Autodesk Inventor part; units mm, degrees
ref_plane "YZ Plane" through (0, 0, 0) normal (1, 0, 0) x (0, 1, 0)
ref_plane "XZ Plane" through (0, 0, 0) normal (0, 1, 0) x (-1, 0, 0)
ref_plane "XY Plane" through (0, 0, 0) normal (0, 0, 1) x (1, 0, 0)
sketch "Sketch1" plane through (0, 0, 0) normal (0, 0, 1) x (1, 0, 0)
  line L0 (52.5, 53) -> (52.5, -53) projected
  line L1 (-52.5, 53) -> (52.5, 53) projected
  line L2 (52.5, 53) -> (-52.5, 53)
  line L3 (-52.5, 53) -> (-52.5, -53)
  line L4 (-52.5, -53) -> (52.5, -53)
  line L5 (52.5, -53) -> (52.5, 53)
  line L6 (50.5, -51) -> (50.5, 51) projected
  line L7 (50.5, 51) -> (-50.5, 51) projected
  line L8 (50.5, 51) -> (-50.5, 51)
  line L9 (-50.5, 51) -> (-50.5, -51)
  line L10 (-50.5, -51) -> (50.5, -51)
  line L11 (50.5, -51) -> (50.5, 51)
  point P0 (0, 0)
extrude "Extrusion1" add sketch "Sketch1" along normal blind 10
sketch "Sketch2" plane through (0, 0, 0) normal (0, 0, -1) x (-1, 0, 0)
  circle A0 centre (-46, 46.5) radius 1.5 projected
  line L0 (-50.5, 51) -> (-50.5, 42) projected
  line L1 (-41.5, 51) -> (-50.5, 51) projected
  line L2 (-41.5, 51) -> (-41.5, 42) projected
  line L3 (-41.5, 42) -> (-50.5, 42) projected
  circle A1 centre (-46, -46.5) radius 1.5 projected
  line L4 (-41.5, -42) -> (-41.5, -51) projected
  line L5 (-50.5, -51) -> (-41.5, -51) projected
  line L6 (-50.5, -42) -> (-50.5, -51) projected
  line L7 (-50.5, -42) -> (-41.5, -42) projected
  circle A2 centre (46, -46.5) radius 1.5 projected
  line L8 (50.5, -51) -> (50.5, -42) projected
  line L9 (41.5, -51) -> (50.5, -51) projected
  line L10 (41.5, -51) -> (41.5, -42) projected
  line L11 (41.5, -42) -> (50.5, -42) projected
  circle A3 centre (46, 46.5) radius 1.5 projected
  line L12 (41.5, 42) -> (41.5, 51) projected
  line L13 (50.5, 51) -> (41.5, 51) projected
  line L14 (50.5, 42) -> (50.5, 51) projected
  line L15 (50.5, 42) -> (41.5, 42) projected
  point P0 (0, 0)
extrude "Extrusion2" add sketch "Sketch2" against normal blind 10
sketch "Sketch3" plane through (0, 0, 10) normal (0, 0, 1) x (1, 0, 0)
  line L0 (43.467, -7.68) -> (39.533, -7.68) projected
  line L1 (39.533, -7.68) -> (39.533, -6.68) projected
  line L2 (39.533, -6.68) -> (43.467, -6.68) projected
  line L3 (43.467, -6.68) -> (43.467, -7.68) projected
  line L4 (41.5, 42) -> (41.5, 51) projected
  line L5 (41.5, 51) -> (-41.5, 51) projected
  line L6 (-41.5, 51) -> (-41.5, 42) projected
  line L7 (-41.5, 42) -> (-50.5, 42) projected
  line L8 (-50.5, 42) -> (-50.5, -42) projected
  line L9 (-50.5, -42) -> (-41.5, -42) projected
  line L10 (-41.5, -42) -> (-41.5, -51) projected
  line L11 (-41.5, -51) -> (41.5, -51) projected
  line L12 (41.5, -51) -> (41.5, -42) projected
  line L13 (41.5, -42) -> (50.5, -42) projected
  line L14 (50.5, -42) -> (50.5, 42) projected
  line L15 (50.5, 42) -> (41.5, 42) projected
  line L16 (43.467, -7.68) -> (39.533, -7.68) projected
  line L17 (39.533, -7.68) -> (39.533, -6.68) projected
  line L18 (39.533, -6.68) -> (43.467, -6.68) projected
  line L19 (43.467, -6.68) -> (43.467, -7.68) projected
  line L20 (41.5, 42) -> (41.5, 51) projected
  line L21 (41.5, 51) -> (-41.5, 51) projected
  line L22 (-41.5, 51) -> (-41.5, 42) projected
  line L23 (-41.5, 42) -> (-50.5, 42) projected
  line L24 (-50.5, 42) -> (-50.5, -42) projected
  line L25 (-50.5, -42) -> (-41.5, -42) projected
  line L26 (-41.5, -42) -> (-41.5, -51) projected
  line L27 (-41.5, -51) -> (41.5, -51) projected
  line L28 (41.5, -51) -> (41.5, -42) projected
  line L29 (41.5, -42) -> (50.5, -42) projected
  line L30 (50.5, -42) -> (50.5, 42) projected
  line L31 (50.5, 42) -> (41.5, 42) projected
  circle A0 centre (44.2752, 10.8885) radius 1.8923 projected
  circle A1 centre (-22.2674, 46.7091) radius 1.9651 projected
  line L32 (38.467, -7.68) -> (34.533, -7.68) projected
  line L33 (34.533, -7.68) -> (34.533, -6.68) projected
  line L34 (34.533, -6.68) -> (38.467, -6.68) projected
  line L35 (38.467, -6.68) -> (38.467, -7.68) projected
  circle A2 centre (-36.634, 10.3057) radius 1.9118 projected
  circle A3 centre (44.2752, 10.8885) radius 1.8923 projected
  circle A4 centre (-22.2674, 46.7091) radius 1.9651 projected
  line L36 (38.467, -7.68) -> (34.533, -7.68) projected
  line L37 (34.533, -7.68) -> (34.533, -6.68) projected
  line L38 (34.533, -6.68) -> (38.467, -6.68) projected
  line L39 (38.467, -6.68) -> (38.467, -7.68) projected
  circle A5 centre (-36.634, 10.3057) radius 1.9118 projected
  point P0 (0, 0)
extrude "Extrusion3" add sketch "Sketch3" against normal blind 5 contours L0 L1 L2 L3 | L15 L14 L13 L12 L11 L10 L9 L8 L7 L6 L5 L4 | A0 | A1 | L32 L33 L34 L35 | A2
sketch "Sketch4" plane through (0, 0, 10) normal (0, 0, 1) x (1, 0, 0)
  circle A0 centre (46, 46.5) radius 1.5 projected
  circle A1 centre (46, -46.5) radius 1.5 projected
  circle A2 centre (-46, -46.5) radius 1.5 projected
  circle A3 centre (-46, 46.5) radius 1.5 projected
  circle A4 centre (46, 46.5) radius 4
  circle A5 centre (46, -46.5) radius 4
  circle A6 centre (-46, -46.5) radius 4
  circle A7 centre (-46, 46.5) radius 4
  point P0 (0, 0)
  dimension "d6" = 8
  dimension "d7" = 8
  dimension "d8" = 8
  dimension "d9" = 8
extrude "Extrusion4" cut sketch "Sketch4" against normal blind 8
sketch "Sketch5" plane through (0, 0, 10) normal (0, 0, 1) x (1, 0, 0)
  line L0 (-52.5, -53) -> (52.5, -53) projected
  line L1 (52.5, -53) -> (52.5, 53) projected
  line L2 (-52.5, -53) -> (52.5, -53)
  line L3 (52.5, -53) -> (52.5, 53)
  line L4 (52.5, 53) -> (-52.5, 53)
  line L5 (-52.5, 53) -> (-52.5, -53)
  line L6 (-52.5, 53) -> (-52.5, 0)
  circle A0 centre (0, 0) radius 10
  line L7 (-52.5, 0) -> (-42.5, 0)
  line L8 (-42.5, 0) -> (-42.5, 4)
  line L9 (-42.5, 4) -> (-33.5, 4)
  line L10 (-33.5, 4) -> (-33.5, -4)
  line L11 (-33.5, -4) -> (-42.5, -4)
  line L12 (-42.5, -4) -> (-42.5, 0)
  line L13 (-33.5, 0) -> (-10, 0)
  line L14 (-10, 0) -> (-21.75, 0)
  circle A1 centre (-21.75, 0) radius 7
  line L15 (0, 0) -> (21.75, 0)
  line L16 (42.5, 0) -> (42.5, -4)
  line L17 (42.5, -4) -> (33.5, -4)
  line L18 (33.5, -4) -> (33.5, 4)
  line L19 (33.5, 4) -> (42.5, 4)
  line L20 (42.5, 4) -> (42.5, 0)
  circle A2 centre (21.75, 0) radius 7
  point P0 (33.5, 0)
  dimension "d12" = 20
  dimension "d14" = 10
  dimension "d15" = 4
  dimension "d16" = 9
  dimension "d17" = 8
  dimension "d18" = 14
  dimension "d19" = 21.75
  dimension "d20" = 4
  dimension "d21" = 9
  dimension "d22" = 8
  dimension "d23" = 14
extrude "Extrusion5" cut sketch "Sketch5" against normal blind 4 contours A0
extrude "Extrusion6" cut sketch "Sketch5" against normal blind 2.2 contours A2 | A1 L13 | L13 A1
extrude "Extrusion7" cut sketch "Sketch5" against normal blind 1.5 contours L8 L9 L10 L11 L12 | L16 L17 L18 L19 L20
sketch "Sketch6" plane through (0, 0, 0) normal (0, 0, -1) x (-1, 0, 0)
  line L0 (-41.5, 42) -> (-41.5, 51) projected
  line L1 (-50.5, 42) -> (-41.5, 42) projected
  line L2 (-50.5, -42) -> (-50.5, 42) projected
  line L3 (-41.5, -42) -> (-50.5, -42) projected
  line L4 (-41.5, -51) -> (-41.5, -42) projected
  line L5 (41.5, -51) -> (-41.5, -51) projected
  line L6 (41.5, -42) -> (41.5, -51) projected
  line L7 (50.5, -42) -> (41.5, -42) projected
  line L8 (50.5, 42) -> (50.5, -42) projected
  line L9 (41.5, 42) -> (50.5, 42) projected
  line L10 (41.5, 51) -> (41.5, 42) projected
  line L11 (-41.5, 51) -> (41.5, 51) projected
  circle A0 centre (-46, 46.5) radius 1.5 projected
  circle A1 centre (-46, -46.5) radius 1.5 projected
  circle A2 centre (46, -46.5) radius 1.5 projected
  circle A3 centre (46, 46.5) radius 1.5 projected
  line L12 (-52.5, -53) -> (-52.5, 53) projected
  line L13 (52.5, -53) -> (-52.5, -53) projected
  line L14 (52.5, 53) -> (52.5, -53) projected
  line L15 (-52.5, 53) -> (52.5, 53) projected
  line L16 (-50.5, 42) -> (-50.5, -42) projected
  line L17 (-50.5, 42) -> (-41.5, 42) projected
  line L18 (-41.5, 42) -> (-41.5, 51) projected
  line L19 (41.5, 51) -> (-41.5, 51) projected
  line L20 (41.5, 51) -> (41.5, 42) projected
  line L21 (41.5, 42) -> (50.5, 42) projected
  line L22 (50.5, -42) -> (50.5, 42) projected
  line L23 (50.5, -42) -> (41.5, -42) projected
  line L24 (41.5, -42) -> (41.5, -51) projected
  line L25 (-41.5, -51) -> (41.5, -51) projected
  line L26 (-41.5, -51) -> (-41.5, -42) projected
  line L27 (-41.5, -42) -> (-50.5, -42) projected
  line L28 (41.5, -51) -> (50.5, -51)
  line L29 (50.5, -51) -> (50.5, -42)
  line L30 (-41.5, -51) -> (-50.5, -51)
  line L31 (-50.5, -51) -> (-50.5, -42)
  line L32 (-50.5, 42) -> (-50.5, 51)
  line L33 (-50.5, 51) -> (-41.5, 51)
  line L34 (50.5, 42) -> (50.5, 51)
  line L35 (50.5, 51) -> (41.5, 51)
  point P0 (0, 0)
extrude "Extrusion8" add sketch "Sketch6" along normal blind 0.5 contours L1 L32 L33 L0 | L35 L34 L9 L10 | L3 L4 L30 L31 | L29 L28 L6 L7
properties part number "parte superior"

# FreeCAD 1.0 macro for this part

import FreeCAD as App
import Part
import Sketcher

V = App.Vector


def add_polygon(sketch, points):
    """Adds a closed chain of lines whose ends are joined by coincident constraints."""
    first, n = sketch.GeometryCount, len(points)
    for a, b in zip(points, points[1:] + points[:1]):
        sketch.addGeometry(Part.LineSegment(App.Vector(*a, 0), App.Vector(*b, 0)), False)
    for i in range(n):
        sketch.addConstraint(Sketcher.Constraint("Coincident", first + i, 2, first + (i + 1) % n, 1))

doc = App.newDocument("Part")
body = doc.addObject("PartDesign::Body", "Body")

# Sketch on XY plane
sketch1 = body.newObject("Sketcher::SketchObject", "Sketch")
sketch1.AttachmentSupport = (doc.getObject("XY_Plane"), [""])
sketch1.MapMode = "FlatFace"
add_polygon(sketch1, [(52, -53), (52, 53), (-52, 53), (-52, -53)])  # lines 0-3
add_polygon(sketch1, [(50, 51), (50, -51), (-50, -51), (-50, 51)])  # lines 4-7
sketch1.addConstraint(Sketcher.Constraint("Vertical", 0))
sketch1.addConstraint(Sketcher.Constraint("Horizontal", 1))
sketch1.addConstraint(Sketcher.Constraint("Vertical", 2))
sketch1.addConstraint(Sketcher.Constraint("Horizontal", 3))
sketch1.addConstraint(Sketcher.Constraint("Vertical", 4))
sketch1.addConstraint(Sketcher.Constraint("Horizontal", 5))
sketch1.addConstraint(Sketcher.Constraint("Vertical", 6))
sketch1.addConstraint(Sketcher.Constraint("Horizontal", 7))
sketch1.addConstraint(Sketcher.Constraint("Symmetric", 0, 2, 2, 2, -1, 1))
sketch1.addConstraint(Sketcher.Constraint("Symmetric", 4, 2, 6, 2, -1, 1))
sketch1.addConstraint(Sketcher.Constraint("DistanceX", 1, 2, 1, 1, 105.0))
sketch1.addConstraint(Sketcher.Constraint("DistanceX", 5, 2, 5, 1, 101.0))
sketch1.addConstraint(Sketcher.Constraint("DistanceY", 0, 1, 0, 2, 106.0))
sketch1.addConstraint(Sketcher.Constraint("DistanceY", 4, 2, 4, 1, 102.0))
pad1 = body.newObject("PartDesign::Pad", "Pad")
pad1.Profile = sketch1
pad1.Length = 10

# Sketch on XY plane
sketch2 = body.newObject("Sketcher::SketchObject", "Sketch001")
sketch2.AttachmentSupport = (doc.getObject("XY_Plane"), [""])
sketch2.MapMode = "FlatFace"
add_polygon(sketch2, [(41.5, 51), (50.5, 51), (50.5, 42), (41.5, 42)])  # lines 0-3
sketch2.addGeometry(Part.Circle(V(46, 46.5, 0), V(0, 0, 1), 1.5), False)  # 4
add_polygon(sketch2, [(41.5, -51), (41.5, -42), (50.5, -42), (50.5, -51)])  # lines 5-8
sketch2.addGeometry(Part.Circle(V(46, -46.5, 0), V(0, 0, 1), 1.5), False)  # 9
add_polygon(sketch2, [(-41.5, -51), (-50.5, -51), (-50.5, -42), (-41.5, -42)])  # lines 10-13
sketch2.addGeometry(Part.Circle(V(-46, -46.5, 0), V(0, 0, 1), 1.5), False)  # 14
add_polygon(sketch2, [(-41.5, 51), (-41.5, 42), (-50.5, 42), (-50.5, 51)])  # lines 15-18
sketch2.addGeometry(Part.Circle(V(-46, 46.5, 0), V(0, 0, 1), 1.5), False)  # 19
sketch2.addConstraint(Sketcher.Constraint("Horizontal", 0))
sketch2.addConstraint(Sketcher.Constraint("Vertical", 1))
sketch2.addConstraint(Sketcher.Constraint("Horizontal", 2))
sketch2.addConstraint(Sketcher.Constraint("Vertical", 3))
sketch2.addConstraint(Sketcher.Constraint("Vertical", 5))
sketch2.addConstraint(Sketcher.Constraint("Horizontal", 6))
sketch2.addConstraint(Sketcher.Constraint("Vertical", 7))
sketch2.addConstraint(Sketcher.Constraint("Horizontal", 8))
sketch2.addConstraint(Sketcher.Constraint("Horizontal", 10))
sketch2.addConstraint(Sketcher.Constraint("Vertical", 11))
sketch2.addConstraint(Sketcher.Constraint("Horizontal", 12))
sketch2.addConstraint(Sketcher.Constraint("Vertical", 13))
sketch2.addConstraint(Sketcher.Constraint("Vertical", 15))
sketch2.addConstraint(Sketcher.Constraint("Horizontal", 16))
sketch2.addConstraint(Sketcher.Constraint("Vertical", 17))
sketch2.addConstraint(Sketcher.Constraint("Horizontal", 18))
sketch2.addConstraint(Sketcher.Constraint("Equal", 4, 9))
sketch2.addConstraint(Sketcher.Constraint("Equal", 9, 14))
sketch2.addConstraint(Sketcher.Constraint("Equal", 14, 19))
sketch2.addConstraint(Sketcher.Constraint("Symmetric", 4, 3, 14, 3, -1, 1))
sketch2.addConstraint(Sketcher.Constraint("Symmetric", 9, 3, 19, 3, -1, 1))
sketch2.addConstraint(Sketcher.Constraint("Symmetric", 0, 2, 10, 2, -1, 1))
sketch2.addConstraint(Sketcher.Constraint("Symmetric", 2, 2, 12, 2, -1, 1))
sketch2.addConstraint(Sketcher.Constraint("Symmetric", 5, 2, 15, 2, -1, 1))
sketch2.addConstraint(Sketcher.Constraint("Symmetric", 7, 2, 17, 2, -1, 1))
sketch2.addConstraint(Sketcher.Constraint("Symmetric", 9, 3, 14, 3, -2))
sketch2.addConstraint(Sketcher.Constraint("Symmetric", 7, 2, 10, 2, -2))
sketch2.addConstraint(Sketcher.Constraint("Symmetric", 5, 2, 12, 2, -2))
sketch2.addConstraint(Sketcher.Constraint("Equal", 18, 1))
sketch2.addConstraint(Sketcher.Constraint("Diameter", 4, 3.0))
sketch2.addConstraint(Sketcher.Constraint("DistanceX", 0, 1, 0, 2, 9.0))
sketch2.addConstraint(Sketcher.Constraint("DistanceX", -1, 1, 4, 3, 46.0))
sketch2.addConstraint(Sketcher.Constraint("DistanceY", -1, 1, 0, 2, 51.0))
sketch2.addConstraint(Sketcher.Constraint("DistanceY", 9, 3, 4, 3, 93.0))
sketch2.addConstraint(Sketcher.Constraint("DistanceX", 10, 2, 8, 2, 92.0))
pad2 = body.newObject("PartDesign::Pad", "Pad001")
pad2.Profile = sketch2
pad2.Length = 10

# Sketch on XY plane
sketch3 = body.newObject("Sketcher::SketchObject", "Sketch002")
sketch3.AttachmentSupport = (doc.getObject("XY_Plane"), [""])
sketch3.MapMode = "FlatFace"
sketch3.AttachmentOffset = App.Placement(V(0, 0, 10), App.Rotation())
add_polygon(sketch3, [(50, 42), (42, 42), (42, 51), (-42, 51), (-42, 42), (-50, 42), (-50, -42), (-42, -42), (-42, -51), (42, -51), (42, -42), (50, -42)])  # lines 0-11
sketch3.addConstraint(Sketcher.Constraint("Horizontal", 0))
sketch3.addConstraint(Sketcher.Constraint("Vertical", 1))
sketch3.addConstraint(Sketcher.Constraint("Horizontal", 2))
sketch3.addConstraint(Sketcher.Constraint("Vertical", 3))
sketch3.addConstraint(Sketcher.Constraint("Horizontal", 4))
sketch3.addConstraint(Sketcher.Constraint("Vertical", 5))
sketch3.addConstraint(Sketcher.Constraint("Horizontal", 6))
sketch3.addConstraint(Sketcher.Constraint("Vertical", 7))
sketch3.addConstraint(Sketcher.Constraint("Horizontal", 8))
sketch3.addConstraint(Sketcher.Constraint("Vertical", 9))
sketch3.addConstraint(Sketcher.Constraint("Horizontal", 10))
sketch3.addConstraint(Sketcher.Constraint("Vertical", 11))
sketch3.addConstraint(Sketcher.Constraint("Symmetric", 0, 2, 6, 2, -1, 1))
sketch3.addConstraint(Sketcher.Constraint("Symmetric", 2, 2, 8, 2, -1, 1))
sketch3.addConstraint(Sketcher.Constraint("Symmetric", 4, 2, 10, 2, -1, 1))
sketch3.addConstraint(Sketcher.Constraint("Symmetric", 0, 2, 3, 2, -2))
sketch3.addConstraint(Sketcher.Constraint("Equal", 10, 1))
sketch3.addConstraint(Sketcher.Constraint("DistanceX", 0, 2, 0, 1, 9.0))
sketch3.addConstraint(Sketcher.Constraint("DistanceX", 2, 2, 2, 1, 83.0))
sketch3.addConstraint(Sketcher.Constraint("DistanceY", 5, 2, 5, 1, 84.0))
pad3 = body.newObject("PartDesign::Pad", "Pad002")
pad3.Profile = sketch3
pad3.Length = 5
pad3.Reversed = True

# Sketch on XY plane
sketch4 = body.newObject("Sketcher::SketchObject", "Sketch003")
sketch4.AttachmentSupport = (doc.getObject("XY_Plane"), [""])
sketch4.MapMode = "FlatFace"
sketch4.AttachmentOffset = App.Placement(V(0, 0, 10), App.Rotation())
sketch4.addGeometry(Part.Circle(V(46, 46.5, 0), V(0, 0, 1), 4), False)
sketch4.addGeometry(Part.Circle(V(46, 46.5, 0), V(0, 0, 1), 1.5), False)
sketch4.addGeometry(Part.Circle(V(46, -46.5, 0), V(0, 0, 1), 4), False)
sketch4.addGeometry(Part.Circle(V(46, -46.5, 0), V(0, 0, 1), 1.5), False)
sketch4.addGeometry(Part.Circle(V(-46, -46.5, 0), V(0, 0, 1), 4), False)
sketch4.addGeometry(Part.Circle(V(-46, -46.5, 0), V(0, 0, 1), 1.5), False)
sketch4.addGeometry(Part.Circle(V(-46, 46.5, 0), V(0, 0, 1), 4), False)
sketch4.addGeometry(Part.Circle(V(-46, 46.5, 0), V(0, 0, 1), 1.5), False)
sketch4.addConstraint(Sketcher.Constraint("Coincident", 1, 3, 0, 3))
sketch4.addConstraint(Sketcher.Constraint("Coincident", 3, 3, 2, 3))
sketch4.addConstraint(Sketcher.Constraint("Coincident", 5, 3, 4, 3))
sketch4.addConstraint(Sketcher.Constraint("Coincident", 7, 3, 6, 3))
sketch4.addConstraint(Sketcher.Constraint("Equal", 0, 2))
sketch4.addConstraint(Sketcher.Constraint("Equal", 1, 3))
sketch4.addConstraint(Sketcher.Constraint("Equal", 2, 4))
sketch4.addConstraint(Sketcher.Constraint("Equal", 3, 5))
sketch4.addConstraint(Sketcher.Constraint("Equal", 4, 6))
sketch4.addConstraint(Sketcher.Constraint("Equal", 5, 7))
sketch4.addConstraint(Sketcher.Constraint("Symmetric", 0, 3, 4, 3, -1, 1))
sketch4.addConstraint(Sketcher.Constraint("Symmetric", 2, 3, 6, 3, -1, 1))
sketch4.addConstraint(Sketcher.Constraint("Symmetric", 2, 3, 4, 3, -2))
sketch4.addConstraint(Sketcher.Constraint("Diameter", 0, 8.0))
sketch4.addConstraint(Sketcher.Constraint("Diameter", 1, 3.0))
sketch4.addConstraint(Sketcher.Constraint("DistanceX", -1, 1, 0, 3, 46.0))
sketch4.addConstraint(Sketcher.Constraint("DistanceY", 2, 3, 0, 3, 93.0))
pocket1 = body.newObject("PartDesign::Pocket", "Pocket")
pocket1.Profile = sketch4
pocket1.Length = 8

# Sketch on XY plane
sketch5 = body.newObject("Sketcher::SketchObject", "Sketch004")
sketch5.AttachmentSupport = (doc.getObject("XY_Plane"), [""])
sketch5.MapMode = "FlatFace"
sketch5.AttachmentOffset = App.Placement(V(0, 0, 10), App.Rotation())
sketch5.addGeometry(Part.Circle(V(0, 0, 0), V(0, 0, 1), 10), False)
sketch5.addConstraint(Sketcher.Constraint("Coincident", 0, 3, -1, 1))
sketch5.addConstraint(Sketcher.Constraint("Diameter", 0, 20.0))
pocket2 = body.newObject("PartDesign::Pocket", "Pocket001")
pocket2.Profile = sketch5
pocket2.Length = 4

# Sketch on XY plane
sketch6 = body.newObject("Sketcher::SketchObject", "Sketch005")
sketch6.AttachmentSupport = (doc.getObject("XY_Plane"), [""])
sketch6.MapMode = "FlatFace"
sketch6.AttachmentOffset = App.Placement(V(0, 0, 10), App.Rotation())
sketch6.addGeometry(Part.Circle(V(22, 0, 0), V(0, 0, 1), 7), False)
sketch6.addGeometry(Part.Circle(V(-22, 0, 0), V(0, 0, 1), 7), False)
sketch6.addConstraint(Sketcher.Constraint("Equal", 0, 1))
sketch6.addConstraint(Sketcher.Constraint("Symmetric", 0, 3, 1, 3, -1, 1))
sketch6.addConstraint(Sketcher.Constraint("PointOnObject", 0, 3, -1))
sketch6.addConstraint(Sketcher.Constraint("Diameter", 0, 14.0))
sketch6.addConstraint(Sketcher.Constraint("DistanceX", -1, 1, 0, 3, 21.75))
pocket3 = body.newObject("PartDesign::Pocket", "Pocket002")
pocket3.Profile = sketch6
pocket3.Length = 2.2

# Sketch on XY plane
sketch7 = body.newObject("Sketcher::SketchObject", "Sketch006")
sketch7.AttachmentSupport = (doc.getObject("XY_Plane"), [""])
sketch7.MapMode = "FlatFace"
sketch7.AttachmentOffset = App.Placement(V(0, 0, 10), App.Rotation())
add_polygon(sketch7, [(-42, 4), (-42, -4), (-34, -4), (-34, 4)])  # lines 0-3
add_polygon(sketch7, [(42, -4), (42, 4), (34, 4), (34, -4)])  # lines 4-7
sketch7.addConstraint(Sketcher.Constraint("Vertical", 0))
sketch7.addConstraint(Sketcher.Constraint("Horizontal", 1))
sketch7.addConstraint(Sketcher.Constraint("Vertical", 2))
sketch7.addConstraint(Sketcher.Constraint("Horizontal", 3))
sketch7.addConstraint(Sketcher.Constraint("Vertical", 4))
sketch7.addConstraint(Sketcher.Constraint("Horizontal", 5))
sketch7.addConstraint(Sketcher.Constraint("Vertical", 6))
sketch7.addConstraint(Sketcher.Constraint("Horizontal", 7))
sketch7.addConstraint(Sketcher.Constraint("Symmetric", 0, 2, 4, 2, -1, 1))
sketch7.addConstraint(Sketcher.Constraint("Symmetric", 2, 2, 6, 2, -1, 1))
sketch7.addConstraint(Sketcher.Constraint("Horizontal", 3, 2, 4, 2))
sketch7.addConstraint(Sketcher.Constraint("DistanceX", 1, 1, 1, 2, 9.0))
sketch7.addConstraint(Sketcher.Constraint("DistanceY", 0, 2, 0, 1, 8.0))
sketch7.addConstraint(Sketcher.Constraint("DistanceX", 2, 2, 4, 2, 76.0))
pocket4 = body.newObject("PartDesign::Pocket", "Pocket003")
pocket4.Profile = sketch7
pocket4.Length = 1.5

# Sketch on XY plane
sketch8 = body.newObject("Sketcher::SketchObject", "Sketch007")
sketch8.AttachmentSupport = (doc.getObject("XY_Plane"), [""])
sketch8.MapMode = "FlatFace"
add_polygon(sketch8, [(50.5, 42), (41.5, 42), (41.5, 51), (50.5, 51)])  # lines 0-3
sketch8.addGeometry(Part.Circle(V(46, 46.5, 0), V(0, 0, 1), 1.5), False)  # 4
add_polygon(sketch8, [(-50.5, 51), (-41.5, 51), (-41.5, 42), (-50.5, 42)])  # lines 5-8
sketch8.addGeometry(Part.Circle(V(-46, 46.5, 0), V(0, 0, 1), 1.5), False)  # 9
add_polygon(sketch8, [(41.5, -42), (50.5, -42), (50.5, -51), (41.5, -51)])  # lines 10-13
sketch8.addGeometry(Part.Circle(V(46, -46.5, 0), V(0, 0, 1), 1.5), False)  # 14
add_polygon(sketch8, [(-50.5, -51), (-50.5, -42), (-41.5, -42), (-41.5, -51)])  # lines 15-18
sketch8.addGeometry(Part.Circle(V(-46, -46.5, 0), V(0, 0, 1), 1.5), False)  # 19
sketch8.addConstraint(Sketcher.Constraint("Horizontal", 0))
sketch8.addConstraint(Sketcher.Constraint("Vertical", 1))
sketch8.addConstraint(Sketcher.Constraint("Horizontal", 2))
sketch8.addConstraint(Sketcher.Constraint("Vertical", 3))
sketch8.addConstraint(Sketcher.Constraint("Horizontal", 5))
sketch8.addConstraint(Sketcher.Constraint("Vertical", 6))
sketch8.addConstraint(Sketcher.Constraint("Horizontal", 7))
sketch8.addConstraint(Sketcher.Constraint("Vertical", 8))
sketch8.addConstraint(Sketcher.Constraint("Horizontal", 10))
sketch8.addConstraint(Sketcher.Constraint("Vertical", 11))
sketch8.addConstraint(Sketcher.Constraint("Horizontal", 12))
sketch8.addConstraint(Sketcher.Constraint("Vertical", 13))
sketch8.addConstraint(Sketcher.Constraint("Vertical", 15))
sketch8.addConstraint(Sketcher.Constraint("Horizontal", 16))
sketch8.addConstraint(Sketcher.Constraint("Vertical", 17))
sketch8.addConstraint(Sketcher.Constraint("Horizontal", 18))
sketch8.addConstraint(Sketcher.Constraint("Equal", 4, 9))
sketch8.addConstraint(Sketcher.Constraint("Equal", 9, 14))
sketch8.addConstraint(Sketcher.Constraint("Equal", 14, 19))
sketch8.addConstraint(Sketcher.Constraint("Symmetric", 9, 3, 14, 3, -1, 1))
sketch8.addConstraint(Sketcher.Constraint("Symmetric", 4, 3, 19, 3, -1, 1))
sketch8.addConstraint(Sketcher.Constraint("Symmetric", 7, 2, 10, 2, -1, 1))
sketch8.addConstraint(Sketcher.Constraint("Symmetric", 5, 2, 12, 2, -1, 1))
sketch8.addConstraint(Sketcher.Constraint("Symmetric", 3, 2, 15, 2, -1, 1))
sketch8.addConstraint(Sketcher.Constraint("Symmetric", 1, 2, 17, 2, -1, 1))
sketch8.addConstraint(Sketcher.Constraint("Symmetric", 4, 3, 9, 3, -2))
sketch8.addConstraint(Sketcher.Constraint("Symmetric", 1, 2, 5, 2, -2))
sketch8.addConstraint(Sketcher.Constraint("Symmetric", 3, 2, 7, 2, -2))
sketch8.addConstraint(Sketcher.Constraint("Equal", 18, 1))
sketch8.addConstraint(Sketcher.Constraint("Diameter", 4, 3.0))
sketch8.addConstraint(Sketcher.Constraint("DistanceX", 0, 2, 0, 1, 9.0))
sketch8.addConstraint(Sketcher.Constraint("DistanceX", -1, 1, 4, 3, 46.0))
sketch8.addConstraint(Sketcher.Constraint("DistanceY", -1, 1, 0, 2, 42.0))
sketch8.addConstraint(Sketcher.Constraint("DistanceY", 14, 3, 4, 3, 93.0))
sketch8.addConstraint(Sketcher.Constraint("DistanceX", 5, 2, 1, 2, 83.0))
pad4 = body.newObject("PartDesign::Pad", "Pad003")
pad4.Profile = sketch8
pad4.Length = 0.5
pad4.Reversed = True

doc.recompute()
